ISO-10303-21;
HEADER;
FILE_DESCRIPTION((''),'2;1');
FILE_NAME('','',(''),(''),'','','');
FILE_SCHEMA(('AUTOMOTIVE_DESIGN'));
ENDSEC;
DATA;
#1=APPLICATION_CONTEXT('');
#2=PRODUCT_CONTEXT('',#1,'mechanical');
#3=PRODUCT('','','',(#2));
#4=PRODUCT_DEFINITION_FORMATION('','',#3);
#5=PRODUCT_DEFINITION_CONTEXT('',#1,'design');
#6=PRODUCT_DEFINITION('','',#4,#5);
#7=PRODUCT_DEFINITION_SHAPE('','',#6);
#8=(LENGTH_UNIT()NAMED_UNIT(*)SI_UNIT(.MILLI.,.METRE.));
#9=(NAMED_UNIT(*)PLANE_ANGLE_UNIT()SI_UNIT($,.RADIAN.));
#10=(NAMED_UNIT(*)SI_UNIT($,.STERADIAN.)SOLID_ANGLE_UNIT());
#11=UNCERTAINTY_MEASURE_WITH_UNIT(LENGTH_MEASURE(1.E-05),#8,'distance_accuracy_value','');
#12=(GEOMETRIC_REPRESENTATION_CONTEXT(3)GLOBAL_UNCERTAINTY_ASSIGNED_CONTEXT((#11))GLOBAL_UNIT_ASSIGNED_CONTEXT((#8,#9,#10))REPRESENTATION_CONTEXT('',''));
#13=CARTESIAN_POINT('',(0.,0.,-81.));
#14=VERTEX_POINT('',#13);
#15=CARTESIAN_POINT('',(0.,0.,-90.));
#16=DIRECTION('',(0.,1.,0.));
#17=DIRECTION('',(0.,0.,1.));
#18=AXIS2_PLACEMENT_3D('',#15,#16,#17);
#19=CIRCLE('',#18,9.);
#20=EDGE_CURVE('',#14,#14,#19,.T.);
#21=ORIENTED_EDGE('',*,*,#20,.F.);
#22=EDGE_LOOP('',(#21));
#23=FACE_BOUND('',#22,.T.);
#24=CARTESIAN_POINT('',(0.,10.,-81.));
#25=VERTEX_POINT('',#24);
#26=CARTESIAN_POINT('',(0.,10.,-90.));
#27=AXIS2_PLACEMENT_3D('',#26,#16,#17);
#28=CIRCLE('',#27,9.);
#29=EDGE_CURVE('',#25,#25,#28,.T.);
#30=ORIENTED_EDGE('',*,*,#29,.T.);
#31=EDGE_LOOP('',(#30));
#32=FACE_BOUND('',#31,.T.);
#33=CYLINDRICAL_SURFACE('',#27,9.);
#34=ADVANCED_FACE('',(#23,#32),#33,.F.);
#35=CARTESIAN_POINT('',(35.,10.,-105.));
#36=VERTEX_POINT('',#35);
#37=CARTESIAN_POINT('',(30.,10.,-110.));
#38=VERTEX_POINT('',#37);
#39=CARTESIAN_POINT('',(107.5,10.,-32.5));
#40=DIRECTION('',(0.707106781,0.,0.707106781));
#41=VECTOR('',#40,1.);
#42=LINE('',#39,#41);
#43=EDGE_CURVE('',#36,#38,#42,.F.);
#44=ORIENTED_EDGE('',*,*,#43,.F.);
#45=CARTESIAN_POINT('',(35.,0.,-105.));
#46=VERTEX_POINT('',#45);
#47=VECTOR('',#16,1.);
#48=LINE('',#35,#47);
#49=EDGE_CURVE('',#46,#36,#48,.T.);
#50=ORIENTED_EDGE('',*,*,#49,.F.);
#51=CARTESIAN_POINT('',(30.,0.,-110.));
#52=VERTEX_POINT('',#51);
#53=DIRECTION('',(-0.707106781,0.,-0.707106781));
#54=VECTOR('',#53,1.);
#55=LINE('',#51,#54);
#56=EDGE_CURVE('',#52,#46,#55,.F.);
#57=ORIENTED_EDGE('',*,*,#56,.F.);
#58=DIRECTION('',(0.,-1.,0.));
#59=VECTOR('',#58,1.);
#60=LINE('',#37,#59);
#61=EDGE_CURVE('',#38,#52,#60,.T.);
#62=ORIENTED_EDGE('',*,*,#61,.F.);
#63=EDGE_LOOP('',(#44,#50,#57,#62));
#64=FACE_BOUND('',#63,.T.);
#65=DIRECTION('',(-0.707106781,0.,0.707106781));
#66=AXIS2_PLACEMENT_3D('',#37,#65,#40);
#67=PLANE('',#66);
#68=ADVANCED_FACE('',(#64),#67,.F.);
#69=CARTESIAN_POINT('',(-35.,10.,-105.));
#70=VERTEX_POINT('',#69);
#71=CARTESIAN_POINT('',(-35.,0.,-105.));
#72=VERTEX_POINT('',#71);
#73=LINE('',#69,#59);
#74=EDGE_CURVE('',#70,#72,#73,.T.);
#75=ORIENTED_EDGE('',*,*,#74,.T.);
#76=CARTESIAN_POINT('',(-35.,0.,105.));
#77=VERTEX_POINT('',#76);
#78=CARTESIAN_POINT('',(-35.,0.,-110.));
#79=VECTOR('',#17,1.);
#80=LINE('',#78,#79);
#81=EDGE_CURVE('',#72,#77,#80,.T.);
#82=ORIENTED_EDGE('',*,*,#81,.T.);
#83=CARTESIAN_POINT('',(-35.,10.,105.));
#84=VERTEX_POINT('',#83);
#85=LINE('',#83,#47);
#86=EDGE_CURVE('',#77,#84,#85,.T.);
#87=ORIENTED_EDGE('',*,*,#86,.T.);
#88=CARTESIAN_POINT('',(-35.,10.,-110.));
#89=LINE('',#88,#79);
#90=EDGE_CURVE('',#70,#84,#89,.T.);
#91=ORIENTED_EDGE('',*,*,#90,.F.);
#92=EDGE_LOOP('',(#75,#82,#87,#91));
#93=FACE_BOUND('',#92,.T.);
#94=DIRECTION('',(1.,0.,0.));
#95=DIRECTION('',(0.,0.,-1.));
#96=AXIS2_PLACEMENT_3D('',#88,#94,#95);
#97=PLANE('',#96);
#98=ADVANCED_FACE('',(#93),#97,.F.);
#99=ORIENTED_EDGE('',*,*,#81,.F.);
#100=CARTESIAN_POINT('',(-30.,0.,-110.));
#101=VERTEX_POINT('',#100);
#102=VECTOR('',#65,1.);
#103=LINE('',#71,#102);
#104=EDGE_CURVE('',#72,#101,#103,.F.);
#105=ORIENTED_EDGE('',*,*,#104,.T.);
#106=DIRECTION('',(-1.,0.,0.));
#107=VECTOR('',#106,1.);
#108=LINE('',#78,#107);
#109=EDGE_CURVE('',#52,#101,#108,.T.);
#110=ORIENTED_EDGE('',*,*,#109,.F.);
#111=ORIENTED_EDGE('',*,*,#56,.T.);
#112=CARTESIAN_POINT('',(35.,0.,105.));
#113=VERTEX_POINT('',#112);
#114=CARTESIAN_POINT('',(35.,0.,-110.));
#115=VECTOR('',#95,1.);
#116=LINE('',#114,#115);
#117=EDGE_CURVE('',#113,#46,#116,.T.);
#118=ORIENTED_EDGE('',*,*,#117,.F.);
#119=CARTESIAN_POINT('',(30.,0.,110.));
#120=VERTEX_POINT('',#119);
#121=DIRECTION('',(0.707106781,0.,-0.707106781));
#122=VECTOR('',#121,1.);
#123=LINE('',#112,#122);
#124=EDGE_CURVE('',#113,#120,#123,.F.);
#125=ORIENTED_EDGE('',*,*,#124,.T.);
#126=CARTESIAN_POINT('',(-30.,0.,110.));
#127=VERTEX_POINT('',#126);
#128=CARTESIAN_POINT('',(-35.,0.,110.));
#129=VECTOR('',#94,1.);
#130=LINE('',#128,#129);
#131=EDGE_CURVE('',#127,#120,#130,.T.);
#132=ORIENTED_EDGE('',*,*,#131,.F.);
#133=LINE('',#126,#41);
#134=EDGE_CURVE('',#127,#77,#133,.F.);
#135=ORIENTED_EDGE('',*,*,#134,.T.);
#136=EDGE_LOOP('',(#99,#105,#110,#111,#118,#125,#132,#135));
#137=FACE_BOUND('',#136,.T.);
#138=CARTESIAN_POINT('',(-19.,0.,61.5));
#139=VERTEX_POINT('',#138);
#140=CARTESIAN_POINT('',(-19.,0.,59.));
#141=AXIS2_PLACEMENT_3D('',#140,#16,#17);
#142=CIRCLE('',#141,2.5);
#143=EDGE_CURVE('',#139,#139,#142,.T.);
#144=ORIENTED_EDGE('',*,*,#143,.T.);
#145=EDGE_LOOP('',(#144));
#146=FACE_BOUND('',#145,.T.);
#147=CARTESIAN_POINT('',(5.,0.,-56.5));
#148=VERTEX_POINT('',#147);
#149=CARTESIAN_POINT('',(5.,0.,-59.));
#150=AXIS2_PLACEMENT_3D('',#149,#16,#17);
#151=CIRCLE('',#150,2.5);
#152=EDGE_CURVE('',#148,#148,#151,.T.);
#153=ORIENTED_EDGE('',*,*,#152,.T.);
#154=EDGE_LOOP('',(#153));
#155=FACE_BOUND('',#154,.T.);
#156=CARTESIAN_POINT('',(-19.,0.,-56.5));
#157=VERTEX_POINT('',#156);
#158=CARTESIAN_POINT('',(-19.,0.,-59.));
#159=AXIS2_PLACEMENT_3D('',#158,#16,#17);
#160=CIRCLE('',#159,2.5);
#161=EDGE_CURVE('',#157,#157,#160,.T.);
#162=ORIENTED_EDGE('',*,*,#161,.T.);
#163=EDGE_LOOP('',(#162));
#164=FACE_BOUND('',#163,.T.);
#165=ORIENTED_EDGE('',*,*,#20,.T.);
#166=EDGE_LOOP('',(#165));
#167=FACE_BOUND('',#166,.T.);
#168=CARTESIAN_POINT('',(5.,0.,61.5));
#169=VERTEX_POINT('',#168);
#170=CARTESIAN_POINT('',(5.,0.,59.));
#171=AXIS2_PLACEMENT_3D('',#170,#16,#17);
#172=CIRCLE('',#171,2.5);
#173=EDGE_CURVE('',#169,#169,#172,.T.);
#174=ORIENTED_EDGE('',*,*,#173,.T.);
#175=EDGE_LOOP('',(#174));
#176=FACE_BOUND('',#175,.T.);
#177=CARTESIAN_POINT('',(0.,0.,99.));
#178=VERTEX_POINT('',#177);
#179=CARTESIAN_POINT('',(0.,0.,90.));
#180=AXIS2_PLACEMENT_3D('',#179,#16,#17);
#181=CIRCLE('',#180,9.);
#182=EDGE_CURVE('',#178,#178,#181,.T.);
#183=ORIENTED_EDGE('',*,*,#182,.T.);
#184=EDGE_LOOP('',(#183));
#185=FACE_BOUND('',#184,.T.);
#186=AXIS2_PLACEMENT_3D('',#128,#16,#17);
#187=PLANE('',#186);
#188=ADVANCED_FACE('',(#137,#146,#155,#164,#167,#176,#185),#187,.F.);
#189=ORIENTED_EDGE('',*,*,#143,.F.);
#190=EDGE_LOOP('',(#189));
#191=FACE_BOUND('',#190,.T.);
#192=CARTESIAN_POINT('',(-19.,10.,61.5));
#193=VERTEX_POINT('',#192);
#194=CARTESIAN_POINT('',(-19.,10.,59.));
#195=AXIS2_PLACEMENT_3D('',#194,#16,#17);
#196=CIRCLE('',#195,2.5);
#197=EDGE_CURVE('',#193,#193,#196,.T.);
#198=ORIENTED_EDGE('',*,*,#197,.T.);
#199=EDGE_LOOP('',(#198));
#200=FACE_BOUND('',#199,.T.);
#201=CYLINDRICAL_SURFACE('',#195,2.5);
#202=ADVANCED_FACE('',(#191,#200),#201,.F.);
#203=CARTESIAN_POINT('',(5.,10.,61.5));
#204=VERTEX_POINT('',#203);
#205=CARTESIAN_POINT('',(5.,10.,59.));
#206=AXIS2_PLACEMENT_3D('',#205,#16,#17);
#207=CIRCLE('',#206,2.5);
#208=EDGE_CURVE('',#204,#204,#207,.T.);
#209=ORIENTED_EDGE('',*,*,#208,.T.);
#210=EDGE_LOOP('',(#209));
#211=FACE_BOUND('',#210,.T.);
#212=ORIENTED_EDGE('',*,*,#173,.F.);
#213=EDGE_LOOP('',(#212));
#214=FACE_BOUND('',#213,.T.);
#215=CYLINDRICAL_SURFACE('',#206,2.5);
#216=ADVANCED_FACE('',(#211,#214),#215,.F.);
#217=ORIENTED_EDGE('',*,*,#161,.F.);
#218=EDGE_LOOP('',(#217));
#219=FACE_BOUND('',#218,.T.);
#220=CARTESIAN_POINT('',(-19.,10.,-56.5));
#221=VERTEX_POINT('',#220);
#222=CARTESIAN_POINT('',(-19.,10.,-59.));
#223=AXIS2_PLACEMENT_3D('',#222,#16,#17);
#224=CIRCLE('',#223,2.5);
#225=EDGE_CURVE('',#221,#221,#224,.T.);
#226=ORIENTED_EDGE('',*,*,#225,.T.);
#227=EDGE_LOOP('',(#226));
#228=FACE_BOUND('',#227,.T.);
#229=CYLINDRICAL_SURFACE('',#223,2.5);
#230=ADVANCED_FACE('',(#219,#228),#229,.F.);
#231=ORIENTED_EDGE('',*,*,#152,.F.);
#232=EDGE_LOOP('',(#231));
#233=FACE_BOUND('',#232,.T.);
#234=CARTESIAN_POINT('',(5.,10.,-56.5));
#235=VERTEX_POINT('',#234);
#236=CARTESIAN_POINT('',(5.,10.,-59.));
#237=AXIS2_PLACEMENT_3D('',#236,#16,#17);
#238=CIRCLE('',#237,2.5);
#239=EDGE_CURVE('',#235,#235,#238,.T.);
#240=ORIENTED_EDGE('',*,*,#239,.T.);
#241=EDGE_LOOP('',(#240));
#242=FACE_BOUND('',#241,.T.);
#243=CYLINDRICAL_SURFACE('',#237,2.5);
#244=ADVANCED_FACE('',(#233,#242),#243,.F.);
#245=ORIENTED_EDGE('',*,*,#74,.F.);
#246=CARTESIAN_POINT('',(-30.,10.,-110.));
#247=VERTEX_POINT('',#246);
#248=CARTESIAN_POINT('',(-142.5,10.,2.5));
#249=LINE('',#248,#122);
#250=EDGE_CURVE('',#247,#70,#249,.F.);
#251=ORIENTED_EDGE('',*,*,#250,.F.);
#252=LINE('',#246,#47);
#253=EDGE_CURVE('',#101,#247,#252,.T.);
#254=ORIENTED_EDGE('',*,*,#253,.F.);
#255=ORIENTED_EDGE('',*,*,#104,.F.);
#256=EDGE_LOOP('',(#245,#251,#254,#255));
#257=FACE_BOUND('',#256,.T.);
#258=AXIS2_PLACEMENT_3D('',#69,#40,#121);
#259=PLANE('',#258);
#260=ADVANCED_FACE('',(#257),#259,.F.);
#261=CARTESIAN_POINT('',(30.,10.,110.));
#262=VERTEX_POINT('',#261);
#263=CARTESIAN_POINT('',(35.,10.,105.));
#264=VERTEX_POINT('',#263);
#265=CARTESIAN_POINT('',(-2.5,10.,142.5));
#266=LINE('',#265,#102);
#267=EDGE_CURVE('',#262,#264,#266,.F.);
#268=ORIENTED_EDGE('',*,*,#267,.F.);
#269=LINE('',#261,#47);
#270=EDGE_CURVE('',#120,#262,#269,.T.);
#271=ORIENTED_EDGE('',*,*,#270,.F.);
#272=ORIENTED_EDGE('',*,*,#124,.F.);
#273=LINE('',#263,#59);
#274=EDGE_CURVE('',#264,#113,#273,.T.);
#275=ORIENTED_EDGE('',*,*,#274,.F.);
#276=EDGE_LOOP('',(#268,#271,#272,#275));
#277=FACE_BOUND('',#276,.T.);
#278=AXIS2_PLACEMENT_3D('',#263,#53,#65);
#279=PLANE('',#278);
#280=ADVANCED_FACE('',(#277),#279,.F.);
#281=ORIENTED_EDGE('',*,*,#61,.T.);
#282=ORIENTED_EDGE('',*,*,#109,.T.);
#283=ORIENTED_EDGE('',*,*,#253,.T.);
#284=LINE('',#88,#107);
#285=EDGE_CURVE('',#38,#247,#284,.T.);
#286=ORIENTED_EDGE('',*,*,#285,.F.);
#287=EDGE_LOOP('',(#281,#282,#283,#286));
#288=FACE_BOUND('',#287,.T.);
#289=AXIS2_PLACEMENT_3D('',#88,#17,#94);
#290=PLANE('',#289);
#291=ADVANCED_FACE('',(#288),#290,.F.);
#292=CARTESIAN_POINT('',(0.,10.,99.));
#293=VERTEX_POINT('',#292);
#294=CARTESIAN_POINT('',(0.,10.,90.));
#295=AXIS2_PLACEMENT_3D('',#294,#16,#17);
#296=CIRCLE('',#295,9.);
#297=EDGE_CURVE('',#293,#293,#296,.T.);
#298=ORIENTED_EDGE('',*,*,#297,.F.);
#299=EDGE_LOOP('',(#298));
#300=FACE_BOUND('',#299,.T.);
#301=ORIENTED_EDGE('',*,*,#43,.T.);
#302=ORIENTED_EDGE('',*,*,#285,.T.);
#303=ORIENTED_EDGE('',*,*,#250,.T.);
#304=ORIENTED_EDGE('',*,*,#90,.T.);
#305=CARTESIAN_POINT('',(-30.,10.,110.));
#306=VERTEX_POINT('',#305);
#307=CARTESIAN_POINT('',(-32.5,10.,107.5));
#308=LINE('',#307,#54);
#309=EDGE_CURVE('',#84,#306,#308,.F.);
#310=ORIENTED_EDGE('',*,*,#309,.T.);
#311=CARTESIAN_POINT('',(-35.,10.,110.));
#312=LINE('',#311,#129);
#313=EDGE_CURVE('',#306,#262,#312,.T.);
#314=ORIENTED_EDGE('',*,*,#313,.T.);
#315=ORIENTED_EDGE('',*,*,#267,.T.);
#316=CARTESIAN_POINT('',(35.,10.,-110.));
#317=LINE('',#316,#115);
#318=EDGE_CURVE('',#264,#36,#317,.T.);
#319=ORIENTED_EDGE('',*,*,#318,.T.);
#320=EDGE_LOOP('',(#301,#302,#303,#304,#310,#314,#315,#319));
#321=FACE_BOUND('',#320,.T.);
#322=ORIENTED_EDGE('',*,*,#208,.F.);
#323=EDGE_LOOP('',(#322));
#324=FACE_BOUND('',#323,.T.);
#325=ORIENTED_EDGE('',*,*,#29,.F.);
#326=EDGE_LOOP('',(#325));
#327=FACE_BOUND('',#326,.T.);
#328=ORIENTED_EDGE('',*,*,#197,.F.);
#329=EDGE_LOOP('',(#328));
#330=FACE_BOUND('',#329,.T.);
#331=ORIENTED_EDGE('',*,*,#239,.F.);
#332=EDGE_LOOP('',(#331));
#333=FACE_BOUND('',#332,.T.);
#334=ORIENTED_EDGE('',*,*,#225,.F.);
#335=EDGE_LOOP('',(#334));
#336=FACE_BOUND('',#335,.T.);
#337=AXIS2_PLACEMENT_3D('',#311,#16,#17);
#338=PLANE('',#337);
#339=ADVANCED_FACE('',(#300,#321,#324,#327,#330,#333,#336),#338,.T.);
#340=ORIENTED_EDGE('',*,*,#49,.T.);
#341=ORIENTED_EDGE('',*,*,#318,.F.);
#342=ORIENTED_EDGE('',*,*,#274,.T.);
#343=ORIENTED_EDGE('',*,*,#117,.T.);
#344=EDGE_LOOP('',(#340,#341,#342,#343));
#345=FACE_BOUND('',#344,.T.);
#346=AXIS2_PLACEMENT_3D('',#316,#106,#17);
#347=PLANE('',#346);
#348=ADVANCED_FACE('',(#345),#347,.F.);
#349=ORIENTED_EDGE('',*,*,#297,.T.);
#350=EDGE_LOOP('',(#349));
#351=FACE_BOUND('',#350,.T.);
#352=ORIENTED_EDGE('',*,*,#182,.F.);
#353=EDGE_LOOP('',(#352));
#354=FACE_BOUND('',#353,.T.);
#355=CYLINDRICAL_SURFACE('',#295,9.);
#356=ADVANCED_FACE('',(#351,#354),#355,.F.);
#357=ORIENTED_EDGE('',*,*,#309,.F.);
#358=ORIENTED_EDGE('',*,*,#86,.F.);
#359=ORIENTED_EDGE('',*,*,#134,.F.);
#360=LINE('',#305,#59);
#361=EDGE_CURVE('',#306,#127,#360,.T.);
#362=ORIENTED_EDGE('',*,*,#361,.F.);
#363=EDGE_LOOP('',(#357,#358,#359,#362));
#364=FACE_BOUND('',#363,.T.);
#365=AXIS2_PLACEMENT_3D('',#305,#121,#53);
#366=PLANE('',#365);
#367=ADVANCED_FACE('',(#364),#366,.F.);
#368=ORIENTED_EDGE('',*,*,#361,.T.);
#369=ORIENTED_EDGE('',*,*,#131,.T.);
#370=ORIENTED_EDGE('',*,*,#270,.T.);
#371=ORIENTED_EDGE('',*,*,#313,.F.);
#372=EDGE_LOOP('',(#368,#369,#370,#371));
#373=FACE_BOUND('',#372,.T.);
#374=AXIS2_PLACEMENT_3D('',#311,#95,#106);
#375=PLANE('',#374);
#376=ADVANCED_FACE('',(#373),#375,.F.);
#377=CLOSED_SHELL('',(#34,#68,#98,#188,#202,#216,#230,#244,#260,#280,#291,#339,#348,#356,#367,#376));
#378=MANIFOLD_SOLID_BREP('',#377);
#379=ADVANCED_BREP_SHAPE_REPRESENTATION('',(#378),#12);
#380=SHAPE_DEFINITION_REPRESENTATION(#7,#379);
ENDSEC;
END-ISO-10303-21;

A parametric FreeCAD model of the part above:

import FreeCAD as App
import Part
import Sketcher

V = App.Vector
Q = App.Units.Quantity


def edges_at(feature, points):
    """Names of the edges that pass closest to the given points."""
    edges = feature.Shape.Edges
    near = lambda p: min(range(len(edges)), key=lambda i: edges[i].distToShape(Part.Vertex(*p))[0])
    return sorted({f"Edge{near(p) + 1}" for p in points})


def add_polygon(sketch, points):
    """Adds a closed chain of lines whose ends are joined by coincident constraints."""
    first, n = sketch.GeometryCount, len(points)
    for a, b in zip(points, points[1:] + points[:1]):
        sketch.addGeometry(Part.LineSegment(App.Vector(*a, 0), App.Vector(*b, 0)), False)
    for i in range(n):
        sketch.addConstraint(Sketcher.Constraint("Coincident", first + i, 2, first + (i + 1) % n, 1))

doc = App.newDocument("Part")
body = doc.addObject("PartDesign::Body", "Body")

# Sketch on XZ plane
sketch1 = body.newObject("Sketcher::SketchObject", "Sketch")
sketch1.AttachmentSupport = (doc.getObject("XZ_Plane"), [""])
sketch1.MapMode = "FlatFace"
add_polygon(sketch1, [(-35, -110), (-35, 110), (35, 110), (35, -110)])  # lines 0-3
sketch1.addConstraint([
    Sketcher.Constraint("Vertical", 0),
    Sketcher.Constraint("Horizontal", 1),
    Sketcher.Constraint("Vertical", 2),
    Sketcher.Constraint("Horizontal", 3),
    Sketcher.Constraint("Symmetric", 0, 2, 2, 2, -1, 1),
    Sketcher.Constraint("DistanceX", 1, 1, 1, 2, Q("70 mm")),
    Sketcher.Constraint("DistanceY", 0, 1, 0, 2, Q("220 mm")),
])
pad1 = body.newObject("PartDesign::Pad", "Pad")
pad1.Profile = sketch1
pad1.Length = 10
pad1.Reversed = True

# Sketch on XZ plane
sketch2 = body.newObject("Sketcher::SketchObject", "Sketch001")
sketch2.AttachmentSupport = (doc.getObject("XZ_Plane"), [""])
sketch2.MapMode = "FlatFace"
sketch2.AttachmentOffset = App.Placement(V(0, 0, -10), App.Rotation())
sketch2.addGeometry([
    Part.Circle(V(-19, -59, 0), V(0, 0, 1), 2.5),
    Part.Circle(V(-19, 59, 0), V(0, 0, 1), 2.5),
    Part.Circle(V(5, -59, 0), V(0, 0, 1), 2.5),
    Part.Circle(V(5, 59, 0), V(0, 0, 1), 2.5),
], False)
sketch2.addConstraint([
    Sketcher.Constraint("Equal", 0, 1),
    Sketcher.Constraint("Equal", 1, 2),
    Sketcher.Constraint("Equal", 2, 3),
    Sketcher.Constraint("Symmetric", 0, 3, 1, 3, -1),
    Sketcher.Constraint("Symmetric", 2, 3, 3, 3, -1),
    Sketcher.Constraint("Horizontal", 0, 3, 2, 3),
    Sketcher.Constraint("Diameter", 0, Q("5 mm")),
    Sketcher.Constraint("DistanceX", 0, 3, -1, 1, Q("19 mm")),
    Sketcher.Constraint("DistanceY", 0, 3, -1, 1, Q("59 mm")),
    Sketcher.Constraint("DistanceX", -1, 1, 2, 3, Q("5 mm")),
])
doc.recompute()
hole = body.newObject("PartDesign::Hole", "Hole")
hole.Profile = sketch2
hole.ThreadType = "None"
hole.Diameter = 5
hole.DepthType = "ThroughAll"
hole.Reversed = True

# Sketch on XZ plane
sketch3 = body.newObject("Sketcher::SketchObject", "Sketch002")
sketch3.AttachmentSupport = (doc.getObject("XZ_Plane"), [""])
sketch3.MapMode = "FlatFace"
sketch3.AttachmentOffset = App.Placement(V(0, 0, -10), App.Rotation())
sketch3.addGeometry([
    Part.Circle(V(0, -90, 0), V(0, 0, 1), 9),
    Part.Circle(V(0, 90, 0), V(0, 0, 1), 9),
], False)
sketch3.addConstraint([
    Sketcher.Constraint("Equal", 0, 1),
    Sketcher.Constraint("Symmetric", 0, 3, 1, 3, -1, 1),
    Sketcher.Constraint("PointOnObject", 0, 3, -2),
    Sketcher.Constraint("Diameter", 0, Q("18 mm")),
    Sketcher.Constraint("DistanceY", 0, 3, -1, 1, Q("90 mm")),
])
doc.recompute()
hole2 = body.newObject("PartDesign::Hole", "Hole001")
hole2.Profile = sketch3
hole2.ThreadType = "None"
hole2.Diameter = 18
hole2.DepthType = "ThroughAll"
hole2.Reversed = True
doc.recompute()

chamfer = body.newObject("PartDesign::Chamfer", "Chamfer")
chamfer.Base = (hole2, edges_at(hole2, [
    (-35, 5, -110),
    (35, 5, -110),
    (35, 5, 110),
    (-35, 5, 110),
]))
chamfer.Size = 5

doc.recompute()
